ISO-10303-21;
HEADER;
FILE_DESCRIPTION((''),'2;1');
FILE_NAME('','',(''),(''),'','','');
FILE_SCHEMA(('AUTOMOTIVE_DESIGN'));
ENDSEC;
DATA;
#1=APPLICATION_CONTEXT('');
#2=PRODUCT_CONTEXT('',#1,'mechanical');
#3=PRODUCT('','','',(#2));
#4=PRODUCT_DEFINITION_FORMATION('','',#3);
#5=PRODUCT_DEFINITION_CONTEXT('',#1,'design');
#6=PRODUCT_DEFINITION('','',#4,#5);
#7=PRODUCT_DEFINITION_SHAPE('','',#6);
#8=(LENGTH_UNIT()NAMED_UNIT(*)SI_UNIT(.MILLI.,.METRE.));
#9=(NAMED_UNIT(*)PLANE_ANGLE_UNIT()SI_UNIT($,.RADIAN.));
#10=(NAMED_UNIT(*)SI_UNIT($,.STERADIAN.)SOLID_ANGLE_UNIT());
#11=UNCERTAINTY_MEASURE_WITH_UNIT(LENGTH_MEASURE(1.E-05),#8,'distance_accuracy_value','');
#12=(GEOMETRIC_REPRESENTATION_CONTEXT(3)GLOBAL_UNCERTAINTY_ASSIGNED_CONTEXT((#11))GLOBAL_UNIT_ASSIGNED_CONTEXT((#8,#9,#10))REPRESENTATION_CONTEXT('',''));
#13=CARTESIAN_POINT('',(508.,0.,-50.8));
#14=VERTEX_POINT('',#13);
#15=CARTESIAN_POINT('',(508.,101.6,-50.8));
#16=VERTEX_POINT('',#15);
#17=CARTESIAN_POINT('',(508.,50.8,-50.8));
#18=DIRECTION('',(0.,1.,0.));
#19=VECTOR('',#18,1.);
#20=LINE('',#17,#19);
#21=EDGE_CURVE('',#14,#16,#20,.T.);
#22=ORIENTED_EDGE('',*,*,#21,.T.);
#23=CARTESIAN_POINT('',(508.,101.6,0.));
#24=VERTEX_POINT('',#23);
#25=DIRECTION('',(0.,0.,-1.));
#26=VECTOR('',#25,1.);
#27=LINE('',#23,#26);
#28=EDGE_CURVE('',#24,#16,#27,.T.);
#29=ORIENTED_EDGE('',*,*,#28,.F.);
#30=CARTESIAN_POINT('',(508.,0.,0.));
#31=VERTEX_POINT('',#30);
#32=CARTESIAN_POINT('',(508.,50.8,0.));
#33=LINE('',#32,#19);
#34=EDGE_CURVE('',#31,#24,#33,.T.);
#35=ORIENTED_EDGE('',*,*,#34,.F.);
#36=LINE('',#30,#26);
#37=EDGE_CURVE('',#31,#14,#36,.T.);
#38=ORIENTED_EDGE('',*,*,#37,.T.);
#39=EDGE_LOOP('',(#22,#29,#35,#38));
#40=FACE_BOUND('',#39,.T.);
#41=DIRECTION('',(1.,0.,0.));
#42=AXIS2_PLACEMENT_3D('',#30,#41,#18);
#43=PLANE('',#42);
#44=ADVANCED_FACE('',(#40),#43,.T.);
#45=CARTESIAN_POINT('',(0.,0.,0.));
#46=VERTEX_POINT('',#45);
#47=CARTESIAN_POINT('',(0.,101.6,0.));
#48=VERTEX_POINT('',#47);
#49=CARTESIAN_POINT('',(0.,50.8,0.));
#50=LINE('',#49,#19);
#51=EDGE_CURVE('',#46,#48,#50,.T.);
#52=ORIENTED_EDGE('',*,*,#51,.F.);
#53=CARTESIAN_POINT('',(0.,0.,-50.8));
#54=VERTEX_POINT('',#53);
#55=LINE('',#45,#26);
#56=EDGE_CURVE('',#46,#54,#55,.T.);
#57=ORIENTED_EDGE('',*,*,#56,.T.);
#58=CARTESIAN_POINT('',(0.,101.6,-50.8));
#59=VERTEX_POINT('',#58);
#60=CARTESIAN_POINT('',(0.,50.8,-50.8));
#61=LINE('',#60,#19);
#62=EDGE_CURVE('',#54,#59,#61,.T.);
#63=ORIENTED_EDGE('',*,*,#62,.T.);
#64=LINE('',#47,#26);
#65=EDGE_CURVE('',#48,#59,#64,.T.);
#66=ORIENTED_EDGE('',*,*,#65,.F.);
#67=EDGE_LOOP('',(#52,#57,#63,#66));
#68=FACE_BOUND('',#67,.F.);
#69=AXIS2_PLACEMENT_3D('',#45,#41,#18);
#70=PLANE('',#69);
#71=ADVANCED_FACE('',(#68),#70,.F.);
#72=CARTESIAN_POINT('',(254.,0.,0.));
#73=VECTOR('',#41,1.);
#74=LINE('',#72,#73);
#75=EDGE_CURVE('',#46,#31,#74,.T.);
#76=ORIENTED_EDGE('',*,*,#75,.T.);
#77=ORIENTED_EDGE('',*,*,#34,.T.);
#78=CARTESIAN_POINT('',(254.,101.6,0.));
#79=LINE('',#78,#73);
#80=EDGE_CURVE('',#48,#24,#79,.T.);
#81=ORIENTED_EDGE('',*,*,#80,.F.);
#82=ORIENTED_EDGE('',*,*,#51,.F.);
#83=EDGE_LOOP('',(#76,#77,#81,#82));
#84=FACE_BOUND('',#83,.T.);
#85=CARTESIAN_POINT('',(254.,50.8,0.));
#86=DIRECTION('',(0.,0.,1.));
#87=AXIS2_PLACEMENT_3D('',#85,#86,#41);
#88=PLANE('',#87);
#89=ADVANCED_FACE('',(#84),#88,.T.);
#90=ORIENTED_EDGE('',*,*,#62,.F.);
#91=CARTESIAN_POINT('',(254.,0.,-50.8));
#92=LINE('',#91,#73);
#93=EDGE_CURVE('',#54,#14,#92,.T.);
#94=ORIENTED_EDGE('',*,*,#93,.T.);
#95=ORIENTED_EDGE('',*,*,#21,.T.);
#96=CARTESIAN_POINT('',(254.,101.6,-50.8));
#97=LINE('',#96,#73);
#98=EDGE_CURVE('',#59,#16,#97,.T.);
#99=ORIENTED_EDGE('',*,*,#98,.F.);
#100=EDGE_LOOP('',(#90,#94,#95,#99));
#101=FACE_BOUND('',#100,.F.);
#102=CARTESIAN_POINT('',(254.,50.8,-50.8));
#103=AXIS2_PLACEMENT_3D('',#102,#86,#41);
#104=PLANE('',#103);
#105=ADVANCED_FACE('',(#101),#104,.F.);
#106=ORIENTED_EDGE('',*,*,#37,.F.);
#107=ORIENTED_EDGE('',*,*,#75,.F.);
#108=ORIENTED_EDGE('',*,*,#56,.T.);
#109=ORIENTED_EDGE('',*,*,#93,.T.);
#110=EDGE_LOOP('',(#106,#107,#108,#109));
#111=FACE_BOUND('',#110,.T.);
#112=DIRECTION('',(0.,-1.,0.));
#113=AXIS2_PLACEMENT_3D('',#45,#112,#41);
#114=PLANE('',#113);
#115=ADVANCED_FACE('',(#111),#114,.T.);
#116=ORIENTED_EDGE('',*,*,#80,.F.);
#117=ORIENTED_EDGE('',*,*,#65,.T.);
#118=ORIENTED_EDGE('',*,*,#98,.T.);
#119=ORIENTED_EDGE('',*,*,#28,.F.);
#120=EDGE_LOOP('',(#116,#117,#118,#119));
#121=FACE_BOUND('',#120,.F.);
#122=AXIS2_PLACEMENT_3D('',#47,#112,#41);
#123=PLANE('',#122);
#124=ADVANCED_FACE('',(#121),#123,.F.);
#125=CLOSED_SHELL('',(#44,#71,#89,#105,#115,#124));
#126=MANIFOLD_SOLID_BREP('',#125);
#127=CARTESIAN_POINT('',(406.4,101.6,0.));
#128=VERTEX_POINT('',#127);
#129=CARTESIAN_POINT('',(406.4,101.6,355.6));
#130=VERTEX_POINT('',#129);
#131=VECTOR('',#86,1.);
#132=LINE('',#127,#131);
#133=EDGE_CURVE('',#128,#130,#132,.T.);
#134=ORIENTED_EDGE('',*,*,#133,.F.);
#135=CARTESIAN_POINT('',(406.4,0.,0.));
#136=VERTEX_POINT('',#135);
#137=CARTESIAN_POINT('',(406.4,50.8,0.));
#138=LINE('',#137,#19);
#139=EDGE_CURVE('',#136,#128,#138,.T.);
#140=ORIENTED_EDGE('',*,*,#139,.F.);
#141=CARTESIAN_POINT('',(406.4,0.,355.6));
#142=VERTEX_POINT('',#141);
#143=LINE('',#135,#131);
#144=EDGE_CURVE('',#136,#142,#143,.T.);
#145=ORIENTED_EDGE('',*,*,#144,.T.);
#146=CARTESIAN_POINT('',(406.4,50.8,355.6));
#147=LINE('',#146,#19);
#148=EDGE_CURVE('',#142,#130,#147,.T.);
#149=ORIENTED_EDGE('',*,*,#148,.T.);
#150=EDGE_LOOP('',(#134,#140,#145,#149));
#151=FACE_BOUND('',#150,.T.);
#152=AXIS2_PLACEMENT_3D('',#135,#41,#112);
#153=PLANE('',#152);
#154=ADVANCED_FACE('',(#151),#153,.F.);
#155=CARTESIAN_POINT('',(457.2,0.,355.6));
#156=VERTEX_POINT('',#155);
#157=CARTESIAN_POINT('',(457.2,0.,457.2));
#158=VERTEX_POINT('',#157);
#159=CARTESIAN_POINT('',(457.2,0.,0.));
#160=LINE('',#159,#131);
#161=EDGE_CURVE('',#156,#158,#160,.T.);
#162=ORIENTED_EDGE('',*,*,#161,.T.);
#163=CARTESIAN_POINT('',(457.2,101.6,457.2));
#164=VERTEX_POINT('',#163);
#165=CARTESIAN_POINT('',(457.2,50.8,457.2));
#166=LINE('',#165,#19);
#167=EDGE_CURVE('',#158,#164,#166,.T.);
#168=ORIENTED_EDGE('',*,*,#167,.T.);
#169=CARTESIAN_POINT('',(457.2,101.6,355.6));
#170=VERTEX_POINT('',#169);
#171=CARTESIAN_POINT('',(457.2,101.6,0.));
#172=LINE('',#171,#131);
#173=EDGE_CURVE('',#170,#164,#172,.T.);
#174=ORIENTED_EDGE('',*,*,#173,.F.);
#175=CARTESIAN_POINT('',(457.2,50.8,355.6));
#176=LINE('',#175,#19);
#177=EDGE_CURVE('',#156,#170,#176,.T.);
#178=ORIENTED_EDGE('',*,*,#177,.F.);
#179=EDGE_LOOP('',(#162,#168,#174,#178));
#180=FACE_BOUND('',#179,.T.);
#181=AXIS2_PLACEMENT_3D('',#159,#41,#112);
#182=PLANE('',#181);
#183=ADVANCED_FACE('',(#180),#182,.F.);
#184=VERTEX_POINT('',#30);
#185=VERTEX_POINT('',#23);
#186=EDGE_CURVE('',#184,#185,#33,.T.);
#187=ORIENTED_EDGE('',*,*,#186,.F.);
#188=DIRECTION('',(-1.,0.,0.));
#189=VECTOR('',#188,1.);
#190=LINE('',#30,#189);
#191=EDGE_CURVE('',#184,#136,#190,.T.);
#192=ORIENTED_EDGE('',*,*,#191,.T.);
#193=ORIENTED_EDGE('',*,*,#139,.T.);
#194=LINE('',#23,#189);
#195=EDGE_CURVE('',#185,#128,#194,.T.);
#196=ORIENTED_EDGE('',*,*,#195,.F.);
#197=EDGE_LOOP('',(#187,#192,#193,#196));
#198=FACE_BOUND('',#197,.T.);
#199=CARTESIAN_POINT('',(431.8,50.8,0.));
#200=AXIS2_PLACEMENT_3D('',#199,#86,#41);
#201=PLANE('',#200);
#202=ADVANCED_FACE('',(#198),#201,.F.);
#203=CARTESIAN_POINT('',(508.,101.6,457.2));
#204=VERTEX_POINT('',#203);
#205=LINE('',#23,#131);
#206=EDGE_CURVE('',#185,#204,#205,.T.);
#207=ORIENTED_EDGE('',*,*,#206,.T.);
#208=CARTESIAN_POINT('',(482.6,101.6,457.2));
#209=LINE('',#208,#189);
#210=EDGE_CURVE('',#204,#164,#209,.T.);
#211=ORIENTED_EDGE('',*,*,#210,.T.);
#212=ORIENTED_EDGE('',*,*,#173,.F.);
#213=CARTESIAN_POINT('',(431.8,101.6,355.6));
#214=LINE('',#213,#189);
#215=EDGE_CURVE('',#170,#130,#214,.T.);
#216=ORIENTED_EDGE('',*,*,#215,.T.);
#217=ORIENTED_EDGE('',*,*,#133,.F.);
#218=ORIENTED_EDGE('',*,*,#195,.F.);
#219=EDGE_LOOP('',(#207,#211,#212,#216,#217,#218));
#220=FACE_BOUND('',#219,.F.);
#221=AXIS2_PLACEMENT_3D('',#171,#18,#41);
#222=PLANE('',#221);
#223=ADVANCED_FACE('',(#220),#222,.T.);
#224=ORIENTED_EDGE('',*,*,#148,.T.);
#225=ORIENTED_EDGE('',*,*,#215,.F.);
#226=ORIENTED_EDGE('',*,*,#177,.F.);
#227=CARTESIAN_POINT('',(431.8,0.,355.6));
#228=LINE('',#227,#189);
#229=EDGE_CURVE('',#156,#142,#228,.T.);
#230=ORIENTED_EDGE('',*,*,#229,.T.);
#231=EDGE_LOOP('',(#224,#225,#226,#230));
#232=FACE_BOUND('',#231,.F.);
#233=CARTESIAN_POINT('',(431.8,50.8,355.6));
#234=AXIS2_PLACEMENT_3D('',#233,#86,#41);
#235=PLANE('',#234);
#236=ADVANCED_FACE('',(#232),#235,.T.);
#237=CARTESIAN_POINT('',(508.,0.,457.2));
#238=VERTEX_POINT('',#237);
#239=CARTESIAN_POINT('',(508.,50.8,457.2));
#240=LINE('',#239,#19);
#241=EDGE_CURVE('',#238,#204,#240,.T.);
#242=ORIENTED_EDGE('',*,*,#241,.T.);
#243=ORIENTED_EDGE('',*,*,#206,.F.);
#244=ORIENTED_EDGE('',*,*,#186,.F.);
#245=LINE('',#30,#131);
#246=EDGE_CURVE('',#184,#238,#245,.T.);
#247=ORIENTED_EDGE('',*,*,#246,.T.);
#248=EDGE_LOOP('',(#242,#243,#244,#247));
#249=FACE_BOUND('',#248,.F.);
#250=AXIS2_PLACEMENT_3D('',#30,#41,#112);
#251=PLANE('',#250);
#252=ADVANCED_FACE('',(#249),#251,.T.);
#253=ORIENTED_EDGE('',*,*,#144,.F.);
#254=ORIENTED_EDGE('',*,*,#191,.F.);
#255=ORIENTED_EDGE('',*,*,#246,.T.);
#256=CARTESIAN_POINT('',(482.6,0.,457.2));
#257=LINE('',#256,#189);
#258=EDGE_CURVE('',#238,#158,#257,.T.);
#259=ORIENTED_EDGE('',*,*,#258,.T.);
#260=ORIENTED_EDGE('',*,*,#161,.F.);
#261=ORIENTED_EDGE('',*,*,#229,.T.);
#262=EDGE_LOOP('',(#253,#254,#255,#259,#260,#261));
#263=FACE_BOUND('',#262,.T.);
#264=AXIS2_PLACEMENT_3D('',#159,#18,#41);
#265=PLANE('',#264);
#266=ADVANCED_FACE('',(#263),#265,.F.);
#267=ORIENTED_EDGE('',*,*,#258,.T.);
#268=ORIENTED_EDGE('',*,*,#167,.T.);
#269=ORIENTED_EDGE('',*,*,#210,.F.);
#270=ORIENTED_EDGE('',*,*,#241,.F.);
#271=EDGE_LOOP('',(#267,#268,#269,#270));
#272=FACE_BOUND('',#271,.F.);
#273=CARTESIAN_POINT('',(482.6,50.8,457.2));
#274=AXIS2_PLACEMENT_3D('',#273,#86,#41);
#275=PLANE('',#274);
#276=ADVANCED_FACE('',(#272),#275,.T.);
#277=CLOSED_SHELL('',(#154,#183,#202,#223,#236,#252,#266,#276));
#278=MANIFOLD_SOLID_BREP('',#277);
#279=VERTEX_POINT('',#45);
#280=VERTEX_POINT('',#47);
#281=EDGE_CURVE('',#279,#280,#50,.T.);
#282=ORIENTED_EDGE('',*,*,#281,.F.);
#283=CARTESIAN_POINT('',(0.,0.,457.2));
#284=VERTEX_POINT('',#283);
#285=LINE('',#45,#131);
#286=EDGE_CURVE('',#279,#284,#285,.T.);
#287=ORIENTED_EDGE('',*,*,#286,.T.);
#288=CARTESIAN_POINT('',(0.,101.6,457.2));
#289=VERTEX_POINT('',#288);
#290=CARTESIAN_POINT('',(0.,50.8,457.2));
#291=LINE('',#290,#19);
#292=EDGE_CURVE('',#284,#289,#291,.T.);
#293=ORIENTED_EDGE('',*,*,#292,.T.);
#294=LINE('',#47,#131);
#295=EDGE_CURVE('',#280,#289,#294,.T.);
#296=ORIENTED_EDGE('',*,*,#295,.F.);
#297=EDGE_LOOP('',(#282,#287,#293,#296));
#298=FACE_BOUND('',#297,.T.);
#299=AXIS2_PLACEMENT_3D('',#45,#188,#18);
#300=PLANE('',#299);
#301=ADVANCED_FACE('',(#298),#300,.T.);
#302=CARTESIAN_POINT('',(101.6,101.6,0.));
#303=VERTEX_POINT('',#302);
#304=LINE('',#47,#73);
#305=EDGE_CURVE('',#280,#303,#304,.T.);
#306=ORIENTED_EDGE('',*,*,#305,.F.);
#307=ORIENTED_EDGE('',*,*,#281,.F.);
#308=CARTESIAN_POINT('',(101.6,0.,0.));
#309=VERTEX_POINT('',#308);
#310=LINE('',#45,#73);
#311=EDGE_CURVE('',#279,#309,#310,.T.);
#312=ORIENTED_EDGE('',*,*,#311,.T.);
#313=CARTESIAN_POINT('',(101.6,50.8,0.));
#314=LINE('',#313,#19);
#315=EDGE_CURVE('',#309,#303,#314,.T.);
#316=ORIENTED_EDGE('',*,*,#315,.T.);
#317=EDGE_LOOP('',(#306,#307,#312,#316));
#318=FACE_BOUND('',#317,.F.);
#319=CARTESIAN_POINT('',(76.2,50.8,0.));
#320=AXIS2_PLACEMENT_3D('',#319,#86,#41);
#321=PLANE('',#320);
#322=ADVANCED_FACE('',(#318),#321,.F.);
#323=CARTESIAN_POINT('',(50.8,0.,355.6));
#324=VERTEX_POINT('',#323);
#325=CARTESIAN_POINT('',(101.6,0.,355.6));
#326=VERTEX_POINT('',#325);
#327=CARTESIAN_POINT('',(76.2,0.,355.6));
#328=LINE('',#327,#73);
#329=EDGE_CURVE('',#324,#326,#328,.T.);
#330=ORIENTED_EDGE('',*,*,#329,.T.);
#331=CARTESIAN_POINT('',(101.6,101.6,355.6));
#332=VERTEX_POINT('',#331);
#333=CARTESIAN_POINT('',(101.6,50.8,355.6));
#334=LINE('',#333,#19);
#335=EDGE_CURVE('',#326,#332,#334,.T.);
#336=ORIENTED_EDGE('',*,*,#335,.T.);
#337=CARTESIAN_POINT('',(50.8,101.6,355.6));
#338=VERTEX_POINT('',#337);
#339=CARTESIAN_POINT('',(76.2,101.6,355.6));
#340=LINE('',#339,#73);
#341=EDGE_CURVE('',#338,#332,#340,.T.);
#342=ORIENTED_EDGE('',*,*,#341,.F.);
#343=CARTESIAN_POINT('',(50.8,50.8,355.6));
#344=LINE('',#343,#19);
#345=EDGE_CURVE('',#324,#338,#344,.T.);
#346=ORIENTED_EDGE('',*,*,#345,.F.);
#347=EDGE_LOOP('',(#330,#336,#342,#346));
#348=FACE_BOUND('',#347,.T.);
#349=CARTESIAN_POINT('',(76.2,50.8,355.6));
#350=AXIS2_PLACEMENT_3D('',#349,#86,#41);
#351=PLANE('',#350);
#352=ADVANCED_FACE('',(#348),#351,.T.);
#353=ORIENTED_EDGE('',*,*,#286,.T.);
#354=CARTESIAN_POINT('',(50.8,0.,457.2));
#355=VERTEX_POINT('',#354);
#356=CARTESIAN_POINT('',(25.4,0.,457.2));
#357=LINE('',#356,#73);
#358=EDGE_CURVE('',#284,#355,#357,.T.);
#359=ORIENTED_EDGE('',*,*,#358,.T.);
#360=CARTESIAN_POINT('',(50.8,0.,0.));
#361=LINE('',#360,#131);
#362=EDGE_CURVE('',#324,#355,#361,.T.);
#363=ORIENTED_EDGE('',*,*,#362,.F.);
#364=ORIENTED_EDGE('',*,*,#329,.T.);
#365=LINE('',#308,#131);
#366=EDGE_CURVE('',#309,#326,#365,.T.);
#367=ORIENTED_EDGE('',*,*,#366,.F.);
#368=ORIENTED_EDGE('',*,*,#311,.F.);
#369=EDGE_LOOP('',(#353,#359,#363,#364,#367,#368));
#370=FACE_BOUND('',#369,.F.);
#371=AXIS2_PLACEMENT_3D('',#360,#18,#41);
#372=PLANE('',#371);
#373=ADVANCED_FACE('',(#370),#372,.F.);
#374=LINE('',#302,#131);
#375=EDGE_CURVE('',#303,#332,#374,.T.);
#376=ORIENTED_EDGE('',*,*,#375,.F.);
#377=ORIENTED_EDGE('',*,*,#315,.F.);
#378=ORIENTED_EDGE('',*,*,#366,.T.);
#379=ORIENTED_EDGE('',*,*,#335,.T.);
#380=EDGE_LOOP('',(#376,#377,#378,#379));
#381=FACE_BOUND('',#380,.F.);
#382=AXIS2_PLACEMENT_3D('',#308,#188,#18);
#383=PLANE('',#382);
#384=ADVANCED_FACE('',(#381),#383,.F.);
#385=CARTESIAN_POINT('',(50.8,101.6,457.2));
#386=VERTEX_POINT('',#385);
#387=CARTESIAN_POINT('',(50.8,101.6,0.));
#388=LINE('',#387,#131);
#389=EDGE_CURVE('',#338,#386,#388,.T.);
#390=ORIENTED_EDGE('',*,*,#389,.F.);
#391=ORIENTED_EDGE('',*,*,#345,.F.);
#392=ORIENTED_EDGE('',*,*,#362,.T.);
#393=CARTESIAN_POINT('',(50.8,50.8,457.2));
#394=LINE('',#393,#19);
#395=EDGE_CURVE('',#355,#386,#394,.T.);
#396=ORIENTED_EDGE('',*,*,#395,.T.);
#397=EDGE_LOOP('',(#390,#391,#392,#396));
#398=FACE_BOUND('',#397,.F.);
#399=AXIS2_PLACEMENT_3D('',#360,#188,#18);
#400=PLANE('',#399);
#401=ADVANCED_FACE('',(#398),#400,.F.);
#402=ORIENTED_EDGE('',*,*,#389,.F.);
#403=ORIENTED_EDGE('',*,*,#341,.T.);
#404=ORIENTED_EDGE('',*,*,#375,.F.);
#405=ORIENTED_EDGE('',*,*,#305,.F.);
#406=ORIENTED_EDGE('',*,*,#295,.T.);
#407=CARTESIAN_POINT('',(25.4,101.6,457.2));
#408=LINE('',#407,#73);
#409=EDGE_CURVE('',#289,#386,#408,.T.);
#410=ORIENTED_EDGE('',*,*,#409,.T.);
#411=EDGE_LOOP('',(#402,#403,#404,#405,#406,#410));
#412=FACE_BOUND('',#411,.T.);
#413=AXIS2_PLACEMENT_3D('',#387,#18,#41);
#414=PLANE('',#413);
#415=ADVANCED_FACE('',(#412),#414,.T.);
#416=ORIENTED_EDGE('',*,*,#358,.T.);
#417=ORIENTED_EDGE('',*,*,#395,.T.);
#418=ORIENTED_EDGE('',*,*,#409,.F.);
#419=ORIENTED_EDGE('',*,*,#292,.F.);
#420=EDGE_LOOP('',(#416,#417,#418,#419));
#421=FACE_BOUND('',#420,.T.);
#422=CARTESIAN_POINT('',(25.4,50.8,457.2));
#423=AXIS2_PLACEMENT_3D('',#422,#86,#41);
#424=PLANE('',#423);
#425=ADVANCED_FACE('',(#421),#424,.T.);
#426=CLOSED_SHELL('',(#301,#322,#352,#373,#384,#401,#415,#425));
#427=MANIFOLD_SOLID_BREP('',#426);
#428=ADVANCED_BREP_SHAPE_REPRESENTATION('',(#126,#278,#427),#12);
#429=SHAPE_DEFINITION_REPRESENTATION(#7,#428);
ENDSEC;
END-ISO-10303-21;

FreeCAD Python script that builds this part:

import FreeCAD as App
import Part
import Sketcher
from FreeCAD import Vector
Q = App.Units.Quantity

doc = App.newDocument("Part")
params = doc.addObject("Spreadsheet::Sheet", "Params")
for row, (alias, value) in enumerate([
    ("sketch1_width", "2 in"),
    ("sketch1_height", "4 in"),
    ("pad1_length", "18 in"),
    ("sketch2_width", "2 in"),
    ("sketch2_height", "4 in"),
    ("pad2_length", "14 in"),
    ("sketch3_width", "20 in"),
    ("sketch3_height", "4 in"),
    ("pad3_length", "2 in"),
], start=1):
    params.set(f"A{row}", alias)
    params.set(f"B{row}", "=" + value)
    params.setAlias(f"B{row}", alias)

body = doc.addObject("PartDesign::Body", "Body")

# Sketch on XY plane
sketch1 = body.newObject("Sketcher::SketchObject", "Sketch")
sketch1.AttachmentSupport = (doc.getObject("XY_Plane"), [""])
sketch1.MapMode = "FlatFace"
sketch1.addGeometry(Part.LineSegment(Vector(0, 102, 0), Vector(0, 0, 0)), False)
sketch1.addGeometry(Part.LineSegment(Vector(0, 0, 0), Vector(51, 0, 0)), False)
sketch1.addGeometry(Part.LineSegment(Vector(51, 0, 0), Vector(51, 102, 0)), False)
sketch1.addGeometry(Part.LineSegment(Vector(51, 102, 0), Vector(0, 102, 0)), False)
sketch1.addConstraint(Sketcher.Constraint("Coincident", 0, 2, 1, 1))
sketch1.addConstraint(Sketcher.Constraint("Coincident", 1, 2, 2, 1))
sketch1.addConstraint(Sketcher.Constraint("Coincident", 2, 2, 3, 1))
sketch1.addConstraint(Sketcher.Constraint("Coincident", 3, 2, 0, 1))
sketch1.addConstraint(Sketcher.Constraint("Vertical", 0))
sketch1.addConstraint(Sketcher.Constraint("Horizontal", 1))
sketch1.addConstraint(Sketcher.Constraint("Vertical", 2))
sketch1.addConstraint(Sketcher.Constraint("Horizontal", 3))
sketch1.addConstraint(Sketcher.Constraint("Coincident", 0, 2, -1, 1))
sketch1.addConstraint(Sketcher.Constraint("DistanceX", 1, 1, 1, 2, Q("2 in")))
sketch1.addConstraint(Sketcher.Constraint("DistanceY", 0, 2, 0, 1, Q("4 in")))
sketch1.setExpression("Constraints[9]", "Params.sketch1_width")
sketch1.setExpression("Constraints[10]", "Params.sketch1_height")
pad1 = body.newObject("PartDesign::Pad", "Pad")
pad1.Profile = sketch1
pad1.setExpression("Length", "Params.pad1_length")

# Sketch on XY plane
sketch2 = body.newObject("Sketcher::SketchObject", "Sketch001")
sketch2.AttachmentSupport = (doc.getObject("XY_Plane"), [""])
sketch2.MapMode = "FlatFace"
sketch2.addGeometry(Part.LineSegment(Vector(51, 102, 0), Vector(51, 0, 0)), False)
sketch2.addGeometry(Part.LineSegment(Vector(51, 0, 0), Vector(102, 0, 0)), False)
sketch2.addGeometry(Part.LineSegment(Vector(102, 0, 0), Vector(102, 102, 0)), False)
sketch2.addGeometry(Part.LineSegment(Vector(102, 102, 0), Vector(51, 102, 0)), False)
sketch2.addConstraint(Sketcher.Constraint("Coincident", 0, 2, 1, 1))
sketch2.addConstraint(Sketcher.Constraint("Coincident", 1, 2, 2, 1))
sketch2.addConstraint(Sketcher.Constraint("Coincident", 2, 2, 3, 1))
sketch2.addConstraint(Sketcher.Constraint("Coincident", 3, 2, 0, 1))
sketch2.addConstraint(Sketcher.Constraint("Vertical", 0))
sketch2.addConstraint(Sketcher.Constraint("Horizontal", 1))
sketch2.addConstraint(Sketcher.Constraint("Vertical", 2))
sketch2.addConstraint(Sketcher.Constraint("Horizontal", 3))
sketch2.addConstraint(Sketcher.Constraint("PointOnObject", 0, 2, -1))
sketch2.addConstraint(Sketcher.Constraint("DistanceX", 1, 1, 1, 2, Q("2 in")))
sketch2.addConstraint(Sketcher.Constraint("DistanceY", 0, 2, 0, 1, Q("4 in")))
sketch2.addConstraint(Sketcher.Constraint("DistanceX", -1, 1, 0, 2, Q("2 in")))
sketch2.setExpression("Constraints[9]", "Params.sketch2_width")
sketch2.setExpression("Constraints[10]", "Params.sketch2_height")
pad2 = body.newObject("PartDesign::Pad", "Pad001")
pad2.Profile = sketch2
pad2.setExpression("Length", "Params.pad2_length")
body2 = doc.addObject("PartDesign::Body", "Body001")
doc.recompute()

mirroring = doc.addObject("Part::Mirroring", "Mirroring")
mirroring.Source = body
mirroring.Base = Vector(254, 50.8, 177.8)
mirroring.Normal = Vector(1, 0, 0)
body2.BaseFeature = mirroring
doc.recompute()
body3 = doc.addObject("PartDesign::Body", "Body002")

# Sketch on XY plane
sketch3 = body3.newObject("Sketcher::SketchObject", "Sketch002")
sketch3.AttachmentSupport = (doc.getObject("XY_Plane002"), [""])
sketch3.MapMode = "FlatFace"
sketch3.addGeometry(Part.LineSegment(Vector(0, 102, 0), Vector(0, 0, 0)), False)
sketch3.addGeometry(Part.LineSegment(Vector(0, 0, 0), Vector(508, 0, 0)), False)
sketch3.addGeometry(Part.LineSegment(Vector(508, 0, 0), Vector(508, 102, 0)), False)
sketch3.addGeometry(Part.LineSegment(Vector(508, 102, 0), Vector(0, 102, 0)), False)
sketch3.addConstraint(Sketcher.Constraint("Coincident", 0, 2, 1, 1))
sketch3.addConstraint(Sketcher.Constraint("Coincident", 1, 2, 2, 1))
sketch3.addConstraint(Sketcher.Constraint("Coincident", 2, 2, 3, 1))
sketch3.addConstraint(Sketcher.Constraint("Coincident", 3, 2, 0, 1))
sketch3.addConstraint(Sketcher.Constraint("Vertical", 0))
sketch3.addConstraint(Sketcher.Constraint("Horizontal", 1))
sketch3.addConstraint(Sketcher.Constraint("Vertical", 2))
sketch3.addConstraint(Sketcher.Constraint("Horizontal", 3))
sketch3.addConstraint(Sketcher.Constraint("Coincident", 0, 2, -1, 1))
sketch3.addConstraint(Sketcher.Constraint("DistanceX", 1, 1, 1, 2, Q("20 in")))
sketch3.addConstraint(Sketcher.Constraint("DistanceY", 0, 2, 0, 1, Q("4 in")))
sketch3.setExpression("Constraints[9]", "Params.sketch3_width")
sketch3.setExpression("Constraints[10]", "Params.sketch3_height")
pad3 = body3.newObject("PartDesign::Pad", "Pad002")
pad3.Profile = sketch3
pad3.setExpression("Length", "Params.pad3_length")
pad3.Reversed = True
mirroring.Visibility = False

doc.recompute()
